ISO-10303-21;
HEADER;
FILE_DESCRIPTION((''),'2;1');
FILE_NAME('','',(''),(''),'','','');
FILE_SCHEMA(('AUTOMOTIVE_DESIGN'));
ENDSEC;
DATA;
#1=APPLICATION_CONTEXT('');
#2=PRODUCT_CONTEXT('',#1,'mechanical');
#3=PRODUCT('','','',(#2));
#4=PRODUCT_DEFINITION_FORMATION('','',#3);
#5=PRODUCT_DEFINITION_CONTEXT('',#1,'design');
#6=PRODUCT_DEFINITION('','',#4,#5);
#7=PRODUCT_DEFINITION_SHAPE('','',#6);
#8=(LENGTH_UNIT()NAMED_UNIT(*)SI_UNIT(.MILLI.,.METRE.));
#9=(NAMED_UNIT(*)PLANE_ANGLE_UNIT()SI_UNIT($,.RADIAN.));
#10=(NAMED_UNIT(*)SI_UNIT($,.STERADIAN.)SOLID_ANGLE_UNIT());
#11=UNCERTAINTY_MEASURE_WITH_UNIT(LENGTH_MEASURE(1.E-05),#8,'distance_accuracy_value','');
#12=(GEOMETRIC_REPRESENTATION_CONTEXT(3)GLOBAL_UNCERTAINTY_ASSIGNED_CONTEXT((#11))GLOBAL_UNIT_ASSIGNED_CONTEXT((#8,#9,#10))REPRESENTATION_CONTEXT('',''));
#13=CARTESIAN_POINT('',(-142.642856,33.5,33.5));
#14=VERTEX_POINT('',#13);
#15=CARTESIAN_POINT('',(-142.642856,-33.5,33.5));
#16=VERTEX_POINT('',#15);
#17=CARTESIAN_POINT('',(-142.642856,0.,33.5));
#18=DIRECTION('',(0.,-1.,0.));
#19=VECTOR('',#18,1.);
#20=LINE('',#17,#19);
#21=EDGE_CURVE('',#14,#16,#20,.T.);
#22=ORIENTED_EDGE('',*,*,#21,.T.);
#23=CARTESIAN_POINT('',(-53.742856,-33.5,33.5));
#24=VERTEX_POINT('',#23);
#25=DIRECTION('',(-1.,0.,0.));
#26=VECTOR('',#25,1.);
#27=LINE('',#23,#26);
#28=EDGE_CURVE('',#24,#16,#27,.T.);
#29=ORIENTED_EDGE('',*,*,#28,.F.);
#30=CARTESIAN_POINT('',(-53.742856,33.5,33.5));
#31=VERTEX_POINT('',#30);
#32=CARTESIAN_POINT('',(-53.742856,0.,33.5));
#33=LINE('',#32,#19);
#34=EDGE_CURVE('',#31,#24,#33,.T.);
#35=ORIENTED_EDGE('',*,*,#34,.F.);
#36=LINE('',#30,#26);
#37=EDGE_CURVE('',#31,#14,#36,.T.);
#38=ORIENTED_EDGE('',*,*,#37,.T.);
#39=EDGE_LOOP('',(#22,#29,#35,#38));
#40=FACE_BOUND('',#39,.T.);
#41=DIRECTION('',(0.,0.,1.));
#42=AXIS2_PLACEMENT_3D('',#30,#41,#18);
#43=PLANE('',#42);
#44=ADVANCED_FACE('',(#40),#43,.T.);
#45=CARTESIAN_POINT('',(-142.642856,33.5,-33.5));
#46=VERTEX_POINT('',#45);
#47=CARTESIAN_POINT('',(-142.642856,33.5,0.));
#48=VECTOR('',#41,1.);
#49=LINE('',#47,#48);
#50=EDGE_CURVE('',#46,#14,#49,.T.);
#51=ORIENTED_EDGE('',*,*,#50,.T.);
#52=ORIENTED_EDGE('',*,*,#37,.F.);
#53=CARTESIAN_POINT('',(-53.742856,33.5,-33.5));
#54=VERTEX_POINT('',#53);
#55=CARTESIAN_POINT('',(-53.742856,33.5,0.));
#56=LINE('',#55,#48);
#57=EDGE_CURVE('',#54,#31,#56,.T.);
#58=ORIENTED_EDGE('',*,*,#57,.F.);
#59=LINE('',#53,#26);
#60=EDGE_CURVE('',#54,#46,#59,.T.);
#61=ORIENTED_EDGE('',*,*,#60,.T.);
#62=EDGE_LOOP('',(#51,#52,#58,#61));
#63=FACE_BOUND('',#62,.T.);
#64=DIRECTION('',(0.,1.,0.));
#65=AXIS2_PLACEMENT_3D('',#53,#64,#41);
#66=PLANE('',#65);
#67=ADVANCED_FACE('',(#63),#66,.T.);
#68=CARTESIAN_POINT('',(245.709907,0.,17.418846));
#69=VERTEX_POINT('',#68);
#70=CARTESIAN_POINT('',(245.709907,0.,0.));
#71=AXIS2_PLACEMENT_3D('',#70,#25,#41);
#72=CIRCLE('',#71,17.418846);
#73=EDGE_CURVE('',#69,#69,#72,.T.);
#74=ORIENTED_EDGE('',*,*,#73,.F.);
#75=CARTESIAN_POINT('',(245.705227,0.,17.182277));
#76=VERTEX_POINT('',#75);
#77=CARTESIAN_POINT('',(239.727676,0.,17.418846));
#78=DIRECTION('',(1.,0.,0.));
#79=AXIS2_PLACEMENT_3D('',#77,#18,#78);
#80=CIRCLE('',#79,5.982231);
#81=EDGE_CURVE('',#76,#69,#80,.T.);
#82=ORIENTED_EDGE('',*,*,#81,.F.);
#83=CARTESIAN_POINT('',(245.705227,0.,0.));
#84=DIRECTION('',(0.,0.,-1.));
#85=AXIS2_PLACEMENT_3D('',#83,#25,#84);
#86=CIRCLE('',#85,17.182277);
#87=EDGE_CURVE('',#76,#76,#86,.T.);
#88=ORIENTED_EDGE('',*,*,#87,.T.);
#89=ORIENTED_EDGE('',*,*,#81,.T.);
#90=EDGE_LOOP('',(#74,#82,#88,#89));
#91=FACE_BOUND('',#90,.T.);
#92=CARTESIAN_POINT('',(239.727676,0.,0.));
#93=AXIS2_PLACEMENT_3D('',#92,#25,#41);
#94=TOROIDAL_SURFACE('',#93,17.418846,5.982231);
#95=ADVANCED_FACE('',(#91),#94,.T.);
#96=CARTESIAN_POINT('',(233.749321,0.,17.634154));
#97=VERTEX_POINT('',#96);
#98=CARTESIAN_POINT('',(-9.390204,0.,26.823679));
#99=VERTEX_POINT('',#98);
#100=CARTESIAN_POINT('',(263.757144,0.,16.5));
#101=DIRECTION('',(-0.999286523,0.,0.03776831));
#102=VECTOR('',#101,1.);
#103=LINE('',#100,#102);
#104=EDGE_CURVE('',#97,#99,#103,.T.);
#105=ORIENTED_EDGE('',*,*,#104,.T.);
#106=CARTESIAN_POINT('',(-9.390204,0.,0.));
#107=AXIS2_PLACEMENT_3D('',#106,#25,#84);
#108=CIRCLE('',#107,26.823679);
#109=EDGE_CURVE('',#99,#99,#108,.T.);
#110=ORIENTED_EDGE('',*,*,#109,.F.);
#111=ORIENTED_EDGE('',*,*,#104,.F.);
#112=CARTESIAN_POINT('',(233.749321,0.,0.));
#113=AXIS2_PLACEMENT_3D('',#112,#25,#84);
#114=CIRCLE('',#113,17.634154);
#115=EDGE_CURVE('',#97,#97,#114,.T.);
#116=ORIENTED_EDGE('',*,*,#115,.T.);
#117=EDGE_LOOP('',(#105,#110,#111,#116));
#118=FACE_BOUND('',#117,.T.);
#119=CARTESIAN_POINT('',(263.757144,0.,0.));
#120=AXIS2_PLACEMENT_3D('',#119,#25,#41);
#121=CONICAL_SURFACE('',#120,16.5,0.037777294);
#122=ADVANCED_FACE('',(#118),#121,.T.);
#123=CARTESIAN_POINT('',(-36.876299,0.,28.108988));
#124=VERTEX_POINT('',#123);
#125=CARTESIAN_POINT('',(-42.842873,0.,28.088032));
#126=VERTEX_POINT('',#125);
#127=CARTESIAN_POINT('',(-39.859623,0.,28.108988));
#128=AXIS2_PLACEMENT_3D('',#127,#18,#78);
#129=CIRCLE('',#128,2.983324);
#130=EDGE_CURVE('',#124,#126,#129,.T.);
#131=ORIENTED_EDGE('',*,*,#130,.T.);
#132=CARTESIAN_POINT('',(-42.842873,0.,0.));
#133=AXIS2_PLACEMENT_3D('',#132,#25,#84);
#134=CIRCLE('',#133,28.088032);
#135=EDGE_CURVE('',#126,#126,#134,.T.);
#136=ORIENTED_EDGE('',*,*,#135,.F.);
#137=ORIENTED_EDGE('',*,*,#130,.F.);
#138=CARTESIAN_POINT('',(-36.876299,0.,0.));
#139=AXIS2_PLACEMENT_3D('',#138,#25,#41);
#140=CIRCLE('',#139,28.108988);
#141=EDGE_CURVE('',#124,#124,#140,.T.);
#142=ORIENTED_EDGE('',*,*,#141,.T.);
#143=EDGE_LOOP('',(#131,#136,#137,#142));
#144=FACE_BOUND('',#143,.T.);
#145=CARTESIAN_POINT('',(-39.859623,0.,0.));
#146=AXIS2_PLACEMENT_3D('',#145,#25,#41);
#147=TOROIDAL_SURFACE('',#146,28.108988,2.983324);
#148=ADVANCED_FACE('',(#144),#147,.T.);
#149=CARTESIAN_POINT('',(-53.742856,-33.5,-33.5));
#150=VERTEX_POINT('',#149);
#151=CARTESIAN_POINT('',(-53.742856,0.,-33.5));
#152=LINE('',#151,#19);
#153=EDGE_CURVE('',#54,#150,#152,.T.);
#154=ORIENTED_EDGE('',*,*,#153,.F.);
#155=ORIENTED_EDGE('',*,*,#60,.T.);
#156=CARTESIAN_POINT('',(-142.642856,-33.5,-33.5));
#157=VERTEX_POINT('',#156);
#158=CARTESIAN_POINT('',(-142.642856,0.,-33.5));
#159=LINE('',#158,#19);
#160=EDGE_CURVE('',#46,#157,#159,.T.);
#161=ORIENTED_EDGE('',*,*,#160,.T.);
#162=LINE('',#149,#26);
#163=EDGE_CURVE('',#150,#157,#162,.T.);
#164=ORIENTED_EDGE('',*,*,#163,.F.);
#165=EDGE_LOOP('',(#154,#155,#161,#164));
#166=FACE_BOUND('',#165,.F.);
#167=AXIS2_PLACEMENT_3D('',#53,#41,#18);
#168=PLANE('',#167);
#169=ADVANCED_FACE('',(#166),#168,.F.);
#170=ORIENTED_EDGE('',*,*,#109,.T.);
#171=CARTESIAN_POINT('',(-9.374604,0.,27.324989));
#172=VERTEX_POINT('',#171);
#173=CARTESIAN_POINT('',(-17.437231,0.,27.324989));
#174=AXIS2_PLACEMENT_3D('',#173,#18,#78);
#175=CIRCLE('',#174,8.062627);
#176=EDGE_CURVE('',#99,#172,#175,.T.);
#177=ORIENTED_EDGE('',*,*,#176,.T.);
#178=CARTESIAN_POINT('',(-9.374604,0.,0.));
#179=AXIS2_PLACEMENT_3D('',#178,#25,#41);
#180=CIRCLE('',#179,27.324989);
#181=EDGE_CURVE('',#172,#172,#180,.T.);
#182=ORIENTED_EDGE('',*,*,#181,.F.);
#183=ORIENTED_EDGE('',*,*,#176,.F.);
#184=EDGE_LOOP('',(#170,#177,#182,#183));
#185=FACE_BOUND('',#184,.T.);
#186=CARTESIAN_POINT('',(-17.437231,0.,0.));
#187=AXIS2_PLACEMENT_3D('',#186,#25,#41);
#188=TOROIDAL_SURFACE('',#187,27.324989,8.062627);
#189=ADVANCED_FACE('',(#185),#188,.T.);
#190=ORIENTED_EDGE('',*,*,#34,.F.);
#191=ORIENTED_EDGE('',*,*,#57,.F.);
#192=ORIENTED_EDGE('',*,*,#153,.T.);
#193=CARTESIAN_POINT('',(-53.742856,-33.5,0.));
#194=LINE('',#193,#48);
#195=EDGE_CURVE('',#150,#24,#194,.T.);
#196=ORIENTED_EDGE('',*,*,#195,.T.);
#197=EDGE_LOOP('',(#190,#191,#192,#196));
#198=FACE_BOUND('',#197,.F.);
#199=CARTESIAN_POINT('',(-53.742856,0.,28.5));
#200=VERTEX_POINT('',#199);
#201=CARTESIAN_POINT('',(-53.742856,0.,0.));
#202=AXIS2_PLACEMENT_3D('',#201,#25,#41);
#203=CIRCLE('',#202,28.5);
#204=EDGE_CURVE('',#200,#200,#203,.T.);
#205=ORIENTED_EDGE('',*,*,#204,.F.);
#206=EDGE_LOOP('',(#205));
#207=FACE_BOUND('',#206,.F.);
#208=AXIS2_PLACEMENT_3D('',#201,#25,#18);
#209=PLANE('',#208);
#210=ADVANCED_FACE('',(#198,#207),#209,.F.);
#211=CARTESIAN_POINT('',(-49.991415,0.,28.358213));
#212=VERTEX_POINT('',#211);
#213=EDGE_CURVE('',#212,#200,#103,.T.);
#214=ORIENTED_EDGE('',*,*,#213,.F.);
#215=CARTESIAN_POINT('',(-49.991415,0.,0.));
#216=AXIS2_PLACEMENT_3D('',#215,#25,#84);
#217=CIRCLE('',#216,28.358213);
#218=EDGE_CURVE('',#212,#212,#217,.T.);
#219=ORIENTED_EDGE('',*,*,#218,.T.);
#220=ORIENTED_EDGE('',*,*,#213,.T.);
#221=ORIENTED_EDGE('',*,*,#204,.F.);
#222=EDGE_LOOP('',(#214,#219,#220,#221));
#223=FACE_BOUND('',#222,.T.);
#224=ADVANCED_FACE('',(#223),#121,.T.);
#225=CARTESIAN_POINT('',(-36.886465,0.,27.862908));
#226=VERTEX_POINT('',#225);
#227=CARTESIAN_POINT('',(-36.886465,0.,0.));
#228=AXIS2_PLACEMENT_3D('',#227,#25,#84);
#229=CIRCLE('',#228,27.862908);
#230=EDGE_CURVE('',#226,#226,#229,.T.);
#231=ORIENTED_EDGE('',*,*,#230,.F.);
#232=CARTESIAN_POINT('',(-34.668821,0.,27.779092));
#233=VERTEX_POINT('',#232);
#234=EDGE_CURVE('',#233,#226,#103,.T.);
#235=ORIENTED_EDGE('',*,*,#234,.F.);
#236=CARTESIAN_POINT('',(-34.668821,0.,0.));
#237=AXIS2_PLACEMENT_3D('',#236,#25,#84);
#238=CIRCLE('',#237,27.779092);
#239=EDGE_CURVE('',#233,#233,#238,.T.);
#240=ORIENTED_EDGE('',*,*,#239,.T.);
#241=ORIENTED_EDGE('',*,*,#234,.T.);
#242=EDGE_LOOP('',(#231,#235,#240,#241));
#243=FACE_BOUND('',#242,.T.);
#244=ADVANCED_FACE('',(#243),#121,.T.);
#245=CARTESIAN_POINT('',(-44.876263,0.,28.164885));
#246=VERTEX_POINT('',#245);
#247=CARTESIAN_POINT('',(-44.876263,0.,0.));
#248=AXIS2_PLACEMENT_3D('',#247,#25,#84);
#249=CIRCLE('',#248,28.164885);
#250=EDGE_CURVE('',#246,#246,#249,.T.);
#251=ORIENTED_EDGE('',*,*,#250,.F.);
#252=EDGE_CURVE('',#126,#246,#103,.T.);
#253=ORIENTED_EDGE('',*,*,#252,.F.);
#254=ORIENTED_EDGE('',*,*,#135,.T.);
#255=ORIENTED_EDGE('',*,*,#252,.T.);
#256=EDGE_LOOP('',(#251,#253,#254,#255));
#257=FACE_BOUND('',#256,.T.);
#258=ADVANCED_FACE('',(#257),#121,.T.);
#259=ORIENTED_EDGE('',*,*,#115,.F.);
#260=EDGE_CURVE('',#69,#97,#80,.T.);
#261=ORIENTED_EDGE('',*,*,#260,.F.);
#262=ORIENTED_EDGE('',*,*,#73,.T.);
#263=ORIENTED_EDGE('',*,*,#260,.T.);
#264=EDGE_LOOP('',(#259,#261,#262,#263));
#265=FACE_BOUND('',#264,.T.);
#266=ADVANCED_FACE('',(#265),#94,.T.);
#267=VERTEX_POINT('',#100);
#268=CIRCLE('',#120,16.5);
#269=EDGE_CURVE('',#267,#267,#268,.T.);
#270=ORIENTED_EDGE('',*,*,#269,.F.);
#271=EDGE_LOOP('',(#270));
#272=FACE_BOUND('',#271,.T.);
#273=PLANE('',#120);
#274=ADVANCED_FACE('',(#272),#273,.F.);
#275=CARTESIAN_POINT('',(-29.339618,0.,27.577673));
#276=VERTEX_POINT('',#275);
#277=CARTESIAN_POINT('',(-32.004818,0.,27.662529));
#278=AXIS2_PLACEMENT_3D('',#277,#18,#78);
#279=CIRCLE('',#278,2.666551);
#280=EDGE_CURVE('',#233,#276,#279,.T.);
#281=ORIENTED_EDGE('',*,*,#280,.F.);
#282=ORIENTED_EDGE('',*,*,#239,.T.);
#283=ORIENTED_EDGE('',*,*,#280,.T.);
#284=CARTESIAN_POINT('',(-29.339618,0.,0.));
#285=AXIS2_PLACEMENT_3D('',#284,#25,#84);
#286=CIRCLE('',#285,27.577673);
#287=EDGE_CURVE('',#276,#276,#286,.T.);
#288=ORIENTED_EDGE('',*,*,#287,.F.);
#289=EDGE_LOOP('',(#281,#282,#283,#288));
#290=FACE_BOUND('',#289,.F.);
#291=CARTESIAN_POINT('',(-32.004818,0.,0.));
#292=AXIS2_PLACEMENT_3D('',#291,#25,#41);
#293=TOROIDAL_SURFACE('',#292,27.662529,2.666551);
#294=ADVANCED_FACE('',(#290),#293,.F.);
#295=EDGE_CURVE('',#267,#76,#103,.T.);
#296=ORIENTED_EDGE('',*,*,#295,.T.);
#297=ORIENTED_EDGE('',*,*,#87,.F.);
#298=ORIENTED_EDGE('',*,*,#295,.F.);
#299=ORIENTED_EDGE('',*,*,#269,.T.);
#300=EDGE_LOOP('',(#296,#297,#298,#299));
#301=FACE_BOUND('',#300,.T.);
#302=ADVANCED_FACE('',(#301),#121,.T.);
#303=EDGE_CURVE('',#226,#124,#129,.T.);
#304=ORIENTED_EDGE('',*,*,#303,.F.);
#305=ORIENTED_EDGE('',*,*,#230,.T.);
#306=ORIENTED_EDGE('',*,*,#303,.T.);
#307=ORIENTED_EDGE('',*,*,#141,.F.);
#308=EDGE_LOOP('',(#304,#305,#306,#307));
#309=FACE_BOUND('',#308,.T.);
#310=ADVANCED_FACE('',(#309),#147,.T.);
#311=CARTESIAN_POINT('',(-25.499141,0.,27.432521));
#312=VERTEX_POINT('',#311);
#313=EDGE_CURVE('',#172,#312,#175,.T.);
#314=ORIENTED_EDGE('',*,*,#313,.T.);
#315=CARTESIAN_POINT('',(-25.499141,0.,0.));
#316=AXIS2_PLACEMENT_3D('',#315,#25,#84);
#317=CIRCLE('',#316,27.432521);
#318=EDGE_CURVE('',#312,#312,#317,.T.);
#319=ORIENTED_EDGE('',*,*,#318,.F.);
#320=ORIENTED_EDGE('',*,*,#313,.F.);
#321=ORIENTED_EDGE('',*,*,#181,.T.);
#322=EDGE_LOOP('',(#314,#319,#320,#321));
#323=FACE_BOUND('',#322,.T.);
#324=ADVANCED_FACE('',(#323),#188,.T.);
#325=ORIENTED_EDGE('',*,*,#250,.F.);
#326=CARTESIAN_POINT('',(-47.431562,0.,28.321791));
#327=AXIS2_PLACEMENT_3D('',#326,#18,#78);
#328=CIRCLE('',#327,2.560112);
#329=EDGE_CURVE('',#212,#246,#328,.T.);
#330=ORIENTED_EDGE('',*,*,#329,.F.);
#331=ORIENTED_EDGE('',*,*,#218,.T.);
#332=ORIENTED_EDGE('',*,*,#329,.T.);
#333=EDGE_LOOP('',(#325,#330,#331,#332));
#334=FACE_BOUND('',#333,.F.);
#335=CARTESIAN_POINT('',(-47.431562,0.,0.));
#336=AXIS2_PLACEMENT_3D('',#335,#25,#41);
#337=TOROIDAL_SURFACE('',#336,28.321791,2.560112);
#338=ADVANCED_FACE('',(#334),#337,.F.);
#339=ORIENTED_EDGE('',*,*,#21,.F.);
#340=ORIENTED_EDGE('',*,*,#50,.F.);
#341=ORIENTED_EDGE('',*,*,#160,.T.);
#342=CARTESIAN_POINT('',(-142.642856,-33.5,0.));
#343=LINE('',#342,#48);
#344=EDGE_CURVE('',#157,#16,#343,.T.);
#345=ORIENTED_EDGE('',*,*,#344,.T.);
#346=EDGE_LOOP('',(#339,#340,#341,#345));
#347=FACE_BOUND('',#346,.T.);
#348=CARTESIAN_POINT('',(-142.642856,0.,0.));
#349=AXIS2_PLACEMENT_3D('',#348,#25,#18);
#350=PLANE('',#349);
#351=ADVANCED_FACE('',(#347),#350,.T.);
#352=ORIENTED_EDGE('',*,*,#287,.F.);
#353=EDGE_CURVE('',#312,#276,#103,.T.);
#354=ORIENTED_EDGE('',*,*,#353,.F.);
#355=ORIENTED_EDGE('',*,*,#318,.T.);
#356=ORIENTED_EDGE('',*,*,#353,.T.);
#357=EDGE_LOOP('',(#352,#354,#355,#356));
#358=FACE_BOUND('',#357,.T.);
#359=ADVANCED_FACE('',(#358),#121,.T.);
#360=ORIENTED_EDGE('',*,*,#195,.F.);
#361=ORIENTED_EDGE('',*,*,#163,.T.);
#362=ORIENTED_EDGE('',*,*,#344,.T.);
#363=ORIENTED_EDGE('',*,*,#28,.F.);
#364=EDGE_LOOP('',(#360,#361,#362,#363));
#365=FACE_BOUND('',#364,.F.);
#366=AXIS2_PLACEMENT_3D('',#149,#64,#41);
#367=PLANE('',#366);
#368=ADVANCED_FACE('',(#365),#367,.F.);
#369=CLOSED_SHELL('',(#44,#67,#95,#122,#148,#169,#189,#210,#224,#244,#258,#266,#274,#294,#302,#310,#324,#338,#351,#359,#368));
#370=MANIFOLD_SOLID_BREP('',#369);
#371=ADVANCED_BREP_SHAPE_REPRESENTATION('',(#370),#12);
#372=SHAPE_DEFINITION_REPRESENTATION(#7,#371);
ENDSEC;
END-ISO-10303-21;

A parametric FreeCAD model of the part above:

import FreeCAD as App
import Part
import Sketcher
from FreeCAD import Vector

doc = App.newDocument("Part")
body = doc.addObject("PartDesign::Body", "Body")

# Sketch on XZ plane
sketch1 = doc.addObject("Sketcher::SketchObject", "Sketch")
body.addObject(sketch1)
sketch1.AttachmentSupport = (doc.XZ_Plane, [""])
sketch1.MapMode = "FlatFace"
sketch1.addGeometry([
    Part.LineSegment(Vector(-54, 28, 0), Vector(-54, 0, 0)),
    Part.LineSegment(Vector(-54, 0, 0), Vector(264, 0, 0)),
    Part.LineSegment(Vector(264, 0, 0), Vector(264, 16, 0)),
    Part.LineSegment(Vector(264, 16, 0), Vector(-54, 28, 0)),
], False)
sketch1.addConstraint([
    Sketcher.Constraint("Coincident", 0, 2, 1, 1),
    Sketcher.Constraint("Coincident", 1, 2, 2, 1),
    Sketcher.Constraint("Coincident", 2, 2, 3, 1),
    Sketcher.Constraint("Coincident", 3, 2, 0, 1),
    Sketcher.Constraint("Vertical", 0),
    Sketcher.Constraint("Horizontal", 1),
    Sketcher.Constraint("Vertical", 2),
    Sketcher.Constraint("PointOnObject", 0, 2, -1),
    Sketcher.Constraint("DistanceX", 1, 1, 1, 2, 317.5),
    Sketcher.Constraint("DistanceY", 0, 2, 0, 1, 28.5),
    Sketcher.Constraint("DistanceY", 2, 1, 2, 2, 16.5),
    Sketcher.Constraint("DistanceX", 0, 2, -1, 1, 53.742856),
])
revolution = doc.addObject("PartDesign::Revolution", "Revolution")
body.addObject(revolution)
revolution.Profile = sketch1
revolution.ReferenceAxis = (sketch1, ["H_Axis"])
revolution.Angle = 360

# Sketch on YZ plane
sketch2 = doc.addObject("Sketcher::SketchObject", "Sketch001")
body.addObject(sketch2)
sketch2.AttachmentSupport = (doc.YZ_Plane, [""])
sketch2.MapMode = "FlatFace"
sketch2.AttachmentOffset = App.Placement(Vector(0, 0, -53.742856), App.Rotation())
sketch2.addGeometry([
    Part.LineSegment(Vector(34, 34, 0), Vector(34, -34, 0)),
    Part.LineSegment(Vector(34, -34, 0), Vector(-34, -34, 0)),
    Part.LineSegment(Vector(-34, -34, 0), Vector(-34, 34, 0)),
    Part.LineSegment(Vector(-34, 34, 0), Vector(34, 34, 0)),
], False)
sketch2.addConstraint([
    Sketcher.Constraint("Coincident", 0, 2, 1, 1),
    Sketcher.Constraint("Coincident", 1, 2, 2, 1),
    Sketcher.Constraint("Coincident", 2, 2, 3, 1),
    Sketcher.Constraint("Coincident", 3, 2, 0, 1),
    Sketcher.Constraint("Vertical", 0),
    Sketcher.Constraint("Horizontal", 1),
    Sketcher.Constraint("Vertical", 2),
    Sketcher.Constraint("Horizontal", 3),
    Sketcher.Constraint("Symmetric", 0, 2, 2, 2, -1, 1),
    Sketcher.Constraint("Equal", 3, 0),
    Sketcher.Constraint("DistanceX", 1, 2, 1, 1, 67.0),
])
pad1 = doc.addObject("PartDesign::Pad", "Pad")
body.addObject(pad1)
pad1.Profile = sketch2
pad1.Length = 88.9
pad1.Reversed = True

# Sketch on XZ plane
sketch3 = doc.addObject("Sketcher::SketchObject", "Sketch002")
body.addObject(sketch3)
sketch3.AttachmentSupport = (doc.XZ_Plane, [""])
sketch3.MapMode = "FlatFace"
sketch3.addGeometry(Part.Circle(Vector(240, 17, 0), Vector(0, 0, 1), 6), False)
sketch3.addConstraint([
    Sketcher.Constraint("Diameter", 0, 11.964461),
    Sketcher.Constraint("DistanceX", -1, 1, 0, 3, 239.727676),
    Sketcher.Constraint("DistanceY", -1, 1, 0, 3, 17.418846),
])
revolution2 = doc.addObject("PartDesign::Revolution", "Revolution001")
body.addObject(revolution2)
revolution2.Profile = sketch3
revolution2.ReferenceAxis = (sketch3, ["H_Axis"])
revolution2.Angle = 360

# Sketch on XZ plane
sketch4 = doc.addObject("Sketcher::SketchObject", "Sketch003")
body.addObject(sketch4)
sketch4.AttachmentSupport = (doc.XZ_Plane, [""])
sketch4.MapMode = "FlatFace"
sketch4.addGeometry(Part.Circle(Vector(-17, 27, 0), Vector(0, 0, 1), 8), False)
sketch4.addConstraint([
    Sketcher.Constraint("Diameter", 0, 16.125254),
    Sketcher.Constraint("DistanceX", 0, 3, -1, 1, 17.437231),
    Sketcher.Constraint("DistanceY", -1, 1, 0, 3, 27.324989),
])
revolution3 = doc.addObject("PartDesign::Revolution", "Revolution002")
body.addObject(revolution3)
revolution3.Profile = sketch4
revolution3.ReferenceAxis = (sketch4, ["H_Axis"])
revolution3.Angle = 360

# Sketch on XZ plane
sketch5 = doc.addObject("Sketcher::SketchObject", "Sketch004")
body.addObject(sketch5)
sketch5.AttachmentSupport = (doc.XZ_Plane, [""])
sketch5.MapMode = "FlatFace"
sketch5.addGeometry(Part.Circle(Vector(-39.9, 28.1, 0), Vector(0, 0, 1), 3), False)
sketch5.addConstraint([
    Sketcher.Constraint("Diameter", 0, 5.966647),
    Sketcher.Constraint("DistanceX", 0, 3, -1, 1, 39.859623),
    Sketcher.Constraint("DistanceY", -1, 1, 0, 3, 28.108988),
])
revolution4 = doc.addObject("PartDesign::Revolution", "Revolution003")
body.addObject(revolution4)
revolution4.Profile = sketch5
revolution4.ReferenceAxis = (sketch5, ["H_Axis"])
revolution4.Angle = 360

# Sketch on XZ plane
sketch6 = doc.addObject("Sketcher::SketchObject", "Sketch005")
body.addObject(sketch6)
sketch6.AttachmentSupport = (doc.XZ_Plane, [""])
sketch6.MapMode = "FlatFace"
sketch6.addGeometry([
    Part.Circle(Vector(-47.4, 28.3, 0), Vector(0, 0, 1), 2.6),
    Part.Circle(Vector(-32, 27.7, 0), Vector(0, 0, 1), 2.7),
], False)
sketch6.addConstraint([
    Sketcher.Constraint("Diameter", 0, 5.120223),
    Sketcher.Constraint("Diameter", 1, 5.333102),
    Sketcher.Constraint("DistanceY", -1, 1, 0, 3, 28.321791),
    Sketcher.Constraint("DistanceX", 1, 3, -1, 1, 32.004818),
    Sketcher.Constraint("DistanceY", -1, 1, 1, 3, 27.662529),
    Sketcher.Constraint("DistanceX", 0, 3, -1, 1, 47.431562),
])
groove = doc.addObject("PartDesign::Groove", "Groove")
body.addObject(groove)
groove.Profile = sketch6
groove.ReferenceAxis = (sketch6, ["H_Axis"])
groove.Angle = 360

doc.recompute()
